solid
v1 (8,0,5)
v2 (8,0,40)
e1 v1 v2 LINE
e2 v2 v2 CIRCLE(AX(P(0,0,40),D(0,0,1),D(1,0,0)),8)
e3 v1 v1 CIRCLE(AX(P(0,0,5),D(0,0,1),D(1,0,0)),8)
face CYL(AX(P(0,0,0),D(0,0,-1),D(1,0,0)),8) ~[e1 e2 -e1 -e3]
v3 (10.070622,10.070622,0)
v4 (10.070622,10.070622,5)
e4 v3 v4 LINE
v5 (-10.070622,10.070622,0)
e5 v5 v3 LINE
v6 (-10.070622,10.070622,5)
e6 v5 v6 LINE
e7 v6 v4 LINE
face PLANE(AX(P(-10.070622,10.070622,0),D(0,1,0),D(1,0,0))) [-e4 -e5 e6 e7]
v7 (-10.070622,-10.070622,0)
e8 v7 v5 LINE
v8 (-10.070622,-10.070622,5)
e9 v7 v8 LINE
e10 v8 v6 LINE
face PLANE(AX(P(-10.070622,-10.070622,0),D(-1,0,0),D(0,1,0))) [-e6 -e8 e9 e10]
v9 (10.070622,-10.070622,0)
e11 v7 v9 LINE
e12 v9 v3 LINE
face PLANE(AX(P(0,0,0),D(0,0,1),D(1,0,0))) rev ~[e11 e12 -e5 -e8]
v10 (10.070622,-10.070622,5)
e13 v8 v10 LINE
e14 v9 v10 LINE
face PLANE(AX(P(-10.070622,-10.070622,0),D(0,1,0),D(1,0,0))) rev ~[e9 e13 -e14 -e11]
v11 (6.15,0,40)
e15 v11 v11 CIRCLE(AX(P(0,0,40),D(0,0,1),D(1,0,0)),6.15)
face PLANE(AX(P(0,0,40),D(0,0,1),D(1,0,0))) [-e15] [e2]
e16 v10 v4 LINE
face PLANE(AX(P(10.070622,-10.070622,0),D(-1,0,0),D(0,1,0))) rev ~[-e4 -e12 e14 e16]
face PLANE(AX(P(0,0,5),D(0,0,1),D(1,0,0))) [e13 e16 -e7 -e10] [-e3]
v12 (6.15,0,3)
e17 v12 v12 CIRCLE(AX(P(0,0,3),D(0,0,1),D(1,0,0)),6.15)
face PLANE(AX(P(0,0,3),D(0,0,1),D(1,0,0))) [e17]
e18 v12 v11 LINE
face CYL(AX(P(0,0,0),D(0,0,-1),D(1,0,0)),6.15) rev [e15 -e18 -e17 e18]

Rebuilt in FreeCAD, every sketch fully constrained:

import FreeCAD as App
import Part
import Sketcher
Q = App.Units.Quantity


def add_polygon(sketch, points):
    """Adds a closed chain of lines whose ends are joined by coincident constraints."""
    first, n = sketch.GeometryCount, len(points)
    for a, b in zip(points, points[1:] + points[:1]):
        sketch.addGeometry(Part.LineSegment(App.Vector(*a, 0), App.Vector(*b, 0)), False)
    for i in range(n):
        sketch.addConstraint(Sketcher.Constraint("Coincident", first + i, 2, first + (i + 1) % n, 1))

doc = App.newDocument("Part")
params = doc.addObject("Spreadsheet::Sheet", "Params")
for row, (alias, value) in enumerate([
    ("sketch1_diameter", "16 mm"),
    ("pad1_length", "5 mm"),
    ("sketch2_diameter", "16 mm"),
    ("sketch2_diameter2", "12.3 mm"),
    ("pad2_length", "40 mm"),
    ("sketch3_diameter", "12.3 mm"),
    ("pad3_length", "3 mm"),
], start=1):
    params.set(f"A{row}", alias)
    params.set(f"B{row}", "=" + value)
    params.setAlias(f"B{row}", alias)

body = doc.addObject("PartDesign::Body", "Body")

# Sketch on XY plane
sketch1 = body.newObject("Sketcher::SketchObject", "Sketch")
sketch1.AttachmentSupport = (doc.getObject("XY_Plane"), [""])
sketch1.MapMode = "FlatFace"
add_polygon(sketch1, [(-10, 10), (-10, -10), (10, -10), (10, 10)])  # lines 0-3
sketch1.addGeometry(Part.Circle(App.Vector(0, 0, 0), App.Vector(0, 0, 1), 8), False)  # 4
sketch1.addConstraint([
    Sketcher.Constraint("Vertical", 0),
    Sketcher.Constraint("Horizontal", 1),
    Sketcher.Constraint("Vertical", 2),
    Sketcher.Constraint("Horizontal", 3),
    Sketcher.Constraint("Coincident", 4, 3, -1, 1),
    Sketcher.Constraint("Symmetric", 0, 2, 2, 2, -1, 1),
    Sketcher.Constraint("Equal", 3, 0),
    Sketcher.Constraint("Diameter", 4, Q("16 mm")),
    Sketcher.Constraint("DistanceX", 1, 1, 1, 2, Q("20.141244 mm")),
])
sketch1.setExpression("Constraints[11]", "Params.sketch1_diameter")
pad1 = body.newObject("PartDesign::Pad", "Pad")
pad1.Profile = sketch1
pad1.setExpression("Length", "Params.pad1_length")

# Sketch on XY plane
sketch2 = body.newObject("Sketcher::SketchObject", "Sketch001")
sketch2.AttachmentSupport = (doc.getObject("XY_Plane"), [""])
sketch2.MapMode = "FlatFace"
sketch2.addGeometry([
    Part.Circle(App.Vector(0, 0, 0), App.Vector(0, 0, 1), 8),
    Part.Circle(App.Vector(0, 0, 0), App.Vector(0, 0, 1), 6),
], False)
sketch2.addConstraint([
    Sketcher.Constraint("Coincident", 0, 3, -1, 1),
    Sketcher.Constraint("Coincident", 1, 3, -1, 1),
    Sketcher.Constraint("Diameter", 0, Q("16 mm")),
    Sketcher.Constraint("Diameter", 1, Q("12.3 mm")),
])
sketch2.setExpression("Constraints[2]", "Params.sketch2_diameter")
sketch2.setExpression("Constraints[3]", "Params.sketch2_diameter2")
pad2 = body.newObject("PartDesign::Pad", "Pad001")
pad2.Profile = sketch2
pad2.setExpression("Length", "Params.pad2_length")

# Sketch on XY plane
sketch3 = body.newObject("Sketcher::SketchObject", "Sketch002")
sketch3.AttachmentSupport = (doc.getObject("XY_Plane"), [""])
sketch3.MapMode = "FlatFace"
sketch3.addGeometry(Part.Circle(App.Vector(0, 0, 0), App.Vector(0, 0, 1), 6), False)
sketch3.addConstraint([
    Sketcher.Constraint("Coincident", 0, 3, -1, 1),
    Sketcher.Constraint("Diameter", 0, Q("12.3 mm")),
])
sketch3.setExpression("Constraints[1]", "Params.sketch3_diameter")
pad3 = body.newObject("PartDesign::Pad", "Pad002")
pad3.Profile = sketch3
pad3.setExpression("Length", "Params.pad3_length")

doc.recompute()
